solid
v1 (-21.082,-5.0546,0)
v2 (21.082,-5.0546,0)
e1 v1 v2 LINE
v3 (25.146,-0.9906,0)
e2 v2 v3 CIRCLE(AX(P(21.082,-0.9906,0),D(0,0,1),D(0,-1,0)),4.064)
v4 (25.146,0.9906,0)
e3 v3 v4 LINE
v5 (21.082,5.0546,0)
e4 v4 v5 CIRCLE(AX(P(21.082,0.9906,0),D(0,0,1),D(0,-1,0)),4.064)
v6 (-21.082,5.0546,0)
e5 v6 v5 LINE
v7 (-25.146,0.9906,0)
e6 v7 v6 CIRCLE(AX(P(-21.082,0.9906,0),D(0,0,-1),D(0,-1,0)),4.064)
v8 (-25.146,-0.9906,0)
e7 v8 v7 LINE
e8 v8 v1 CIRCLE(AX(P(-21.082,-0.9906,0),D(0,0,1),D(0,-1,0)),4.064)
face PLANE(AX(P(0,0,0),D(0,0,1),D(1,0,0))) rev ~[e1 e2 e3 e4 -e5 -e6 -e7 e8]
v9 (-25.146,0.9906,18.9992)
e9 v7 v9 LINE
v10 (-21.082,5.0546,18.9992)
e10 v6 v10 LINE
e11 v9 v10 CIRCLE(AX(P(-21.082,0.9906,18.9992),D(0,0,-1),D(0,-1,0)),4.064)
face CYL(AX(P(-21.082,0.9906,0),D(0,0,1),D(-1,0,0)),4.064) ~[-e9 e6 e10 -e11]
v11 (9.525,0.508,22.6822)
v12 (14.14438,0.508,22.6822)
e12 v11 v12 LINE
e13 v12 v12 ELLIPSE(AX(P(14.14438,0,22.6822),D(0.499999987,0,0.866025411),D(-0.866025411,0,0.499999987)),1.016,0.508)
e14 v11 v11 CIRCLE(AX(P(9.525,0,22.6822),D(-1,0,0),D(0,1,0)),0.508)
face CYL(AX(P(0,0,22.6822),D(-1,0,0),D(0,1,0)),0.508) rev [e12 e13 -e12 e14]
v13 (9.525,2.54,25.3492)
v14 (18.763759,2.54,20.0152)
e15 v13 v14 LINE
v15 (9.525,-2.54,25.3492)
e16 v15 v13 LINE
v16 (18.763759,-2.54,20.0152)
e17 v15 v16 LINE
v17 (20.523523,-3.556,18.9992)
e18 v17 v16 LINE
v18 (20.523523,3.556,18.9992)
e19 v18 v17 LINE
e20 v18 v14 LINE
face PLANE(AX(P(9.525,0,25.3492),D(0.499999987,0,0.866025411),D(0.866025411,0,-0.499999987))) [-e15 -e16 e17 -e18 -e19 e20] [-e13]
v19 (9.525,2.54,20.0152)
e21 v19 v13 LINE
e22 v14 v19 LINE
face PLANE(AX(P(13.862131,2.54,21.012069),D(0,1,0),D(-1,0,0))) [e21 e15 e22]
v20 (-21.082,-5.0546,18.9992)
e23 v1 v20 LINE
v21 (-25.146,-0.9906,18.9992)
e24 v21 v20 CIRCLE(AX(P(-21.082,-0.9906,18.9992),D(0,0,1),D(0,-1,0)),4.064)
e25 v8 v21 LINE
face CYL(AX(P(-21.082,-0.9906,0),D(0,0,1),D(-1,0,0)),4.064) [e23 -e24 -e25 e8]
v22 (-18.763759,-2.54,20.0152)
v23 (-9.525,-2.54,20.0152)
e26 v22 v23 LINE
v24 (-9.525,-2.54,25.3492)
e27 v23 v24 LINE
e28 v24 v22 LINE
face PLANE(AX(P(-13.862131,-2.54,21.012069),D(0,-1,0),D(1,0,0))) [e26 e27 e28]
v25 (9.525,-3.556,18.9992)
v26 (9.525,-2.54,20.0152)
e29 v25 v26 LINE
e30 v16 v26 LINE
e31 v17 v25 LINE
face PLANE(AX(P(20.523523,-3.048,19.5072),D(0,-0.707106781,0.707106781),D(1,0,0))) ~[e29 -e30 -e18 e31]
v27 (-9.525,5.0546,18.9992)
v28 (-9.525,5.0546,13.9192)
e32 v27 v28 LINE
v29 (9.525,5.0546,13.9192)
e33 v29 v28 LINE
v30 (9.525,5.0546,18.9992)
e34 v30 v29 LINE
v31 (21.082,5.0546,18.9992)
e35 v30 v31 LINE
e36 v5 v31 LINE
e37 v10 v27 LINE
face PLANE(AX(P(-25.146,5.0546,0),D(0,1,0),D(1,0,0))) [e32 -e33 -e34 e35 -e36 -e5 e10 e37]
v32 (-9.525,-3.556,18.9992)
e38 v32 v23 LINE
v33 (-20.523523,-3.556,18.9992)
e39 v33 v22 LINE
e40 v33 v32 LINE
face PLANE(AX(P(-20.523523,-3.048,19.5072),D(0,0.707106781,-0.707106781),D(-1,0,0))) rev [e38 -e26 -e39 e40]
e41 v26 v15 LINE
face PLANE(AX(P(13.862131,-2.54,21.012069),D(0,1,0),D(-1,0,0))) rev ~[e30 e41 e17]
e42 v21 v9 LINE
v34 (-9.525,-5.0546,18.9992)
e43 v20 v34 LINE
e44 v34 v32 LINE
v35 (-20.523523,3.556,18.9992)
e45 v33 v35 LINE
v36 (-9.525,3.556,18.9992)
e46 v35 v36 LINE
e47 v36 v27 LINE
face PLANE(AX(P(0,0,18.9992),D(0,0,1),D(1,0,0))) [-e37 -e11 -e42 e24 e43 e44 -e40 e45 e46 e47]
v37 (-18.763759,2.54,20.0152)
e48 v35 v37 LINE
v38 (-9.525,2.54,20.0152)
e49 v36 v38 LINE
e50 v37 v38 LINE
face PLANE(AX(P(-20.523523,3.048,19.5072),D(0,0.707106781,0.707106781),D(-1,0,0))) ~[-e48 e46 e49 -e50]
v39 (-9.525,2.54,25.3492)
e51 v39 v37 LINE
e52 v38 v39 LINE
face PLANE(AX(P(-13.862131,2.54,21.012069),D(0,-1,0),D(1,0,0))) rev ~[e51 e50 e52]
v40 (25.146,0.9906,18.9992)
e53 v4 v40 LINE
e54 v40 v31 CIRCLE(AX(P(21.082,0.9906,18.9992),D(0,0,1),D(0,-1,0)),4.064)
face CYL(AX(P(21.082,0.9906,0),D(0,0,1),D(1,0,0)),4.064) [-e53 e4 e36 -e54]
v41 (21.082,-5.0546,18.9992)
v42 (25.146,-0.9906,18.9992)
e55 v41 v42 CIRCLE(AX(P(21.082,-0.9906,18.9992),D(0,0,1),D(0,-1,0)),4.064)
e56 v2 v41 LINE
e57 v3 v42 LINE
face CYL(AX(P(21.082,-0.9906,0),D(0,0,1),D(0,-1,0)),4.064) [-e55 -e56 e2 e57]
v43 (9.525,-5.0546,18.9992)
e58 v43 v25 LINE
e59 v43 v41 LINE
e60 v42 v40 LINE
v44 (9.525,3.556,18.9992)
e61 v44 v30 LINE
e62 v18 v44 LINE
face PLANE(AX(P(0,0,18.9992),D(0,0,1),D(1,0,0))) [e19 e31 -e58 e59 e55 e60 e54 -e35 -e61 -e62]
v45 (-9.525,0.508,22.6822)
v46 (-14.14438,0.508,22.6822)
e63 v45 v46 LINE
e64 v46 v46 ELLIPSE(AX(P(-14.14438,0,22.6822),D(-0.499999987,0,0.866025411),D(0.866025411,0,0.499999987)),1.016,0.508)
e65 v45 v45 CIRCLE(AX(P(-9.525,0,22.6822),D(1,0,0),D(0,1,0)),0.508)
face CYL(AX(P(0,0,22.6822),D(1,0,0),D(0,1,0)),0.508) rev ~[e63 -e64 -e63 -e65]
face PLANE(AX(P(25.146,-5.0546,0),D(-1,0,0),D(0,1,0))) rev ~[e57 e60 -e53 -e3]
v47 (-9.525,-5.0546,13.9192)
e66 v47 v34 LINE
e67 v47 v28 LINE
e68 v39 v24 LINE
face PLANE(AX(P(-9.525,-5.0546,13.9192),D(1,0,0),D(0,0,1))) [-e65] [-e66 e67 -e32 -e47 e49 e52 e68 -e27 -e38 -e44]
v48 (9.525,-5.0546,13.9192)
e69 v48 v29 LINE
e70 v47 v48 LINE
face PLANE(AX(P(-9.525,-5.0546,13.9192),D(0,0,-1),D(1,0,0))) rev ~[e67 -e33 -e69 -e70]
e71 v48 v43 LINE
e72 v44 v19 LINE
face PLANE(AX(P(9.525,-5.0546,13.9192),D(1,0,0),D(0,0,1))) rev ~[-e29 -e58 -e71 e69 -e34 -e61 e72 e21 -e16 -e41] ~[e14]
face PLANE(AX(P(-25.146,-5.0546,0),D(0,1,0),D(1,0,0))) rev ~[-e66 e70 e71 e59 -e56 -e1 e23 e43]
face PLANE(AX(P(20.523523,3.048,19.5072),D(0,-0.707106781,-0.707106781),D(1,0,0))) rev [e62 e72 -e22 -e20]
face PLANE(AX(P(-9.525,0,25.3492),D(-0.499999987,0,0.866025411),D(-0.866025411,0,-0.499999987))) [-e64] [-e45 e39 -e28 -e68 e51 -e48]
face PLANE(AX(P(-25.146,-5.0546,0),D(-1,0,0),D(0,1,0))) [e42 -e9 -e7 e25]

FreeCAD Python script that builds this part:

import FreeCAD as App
import Part
import Sketcher
Q = App.Units.Quantity


def edges_at(feature, points):
    """Names of the edges that pass closest to the given points."""
    edges = feature.Shape.Edges
    near = lambda p: min(range(len(edges)), key=lambda i: edges[i].distToShape(Part.Vertex(*p))[0])
    return sorted({f"Edge{near(p) + 1}" for p in points})


def add_polygon(sketch, points):
    """Adds a closed chain of lines whose ends are joined by coincident constraints."""
    first, n = sketch.GeometryCount, len(points)
    for a, b in zip(points, points[1:] + points[:1]):
        sketch.addGeometry(Part.LineSegment(App.Vector(*a, 0), App.Vector(*b, 0)), False)
    for i in range(n):
        sketch.addConstraint(Sketcher.Constraint("Coincident", first + i, 2, first + (i + 1) % n, 1))

doc = App.newDocument("Part")
body = doc.addObject("PartDesign::Body", "Body")

# Sketch on XY plane
sketch1 = body.newObject("Sketcher::SketchObject", "Sketch")
sketch1.AttachmentSupport = (doc.getObject("XY_Plane"), [""])
sketch1.MapMode = "FlatFace"
add_polygon(sketch1, [(-25, 5), (-25, -5), (25, -5), (25, 5)])  # lines 0-3
sketch1.addConstraint([
    Sketcher.Constraint("Vertical", 0),
    Sketcher.Constraint("Horizontal", 1),
    Sketcher.Constraint("Vertical", 2),
    Sketcher.Constraint("Horizontal", 3),
    Sketcher.Constraint("Symmetric", 0, 2, 2, 2, -1, 1),
    Sketcher.Constraint("DistanceX", 1, 1, 1, 2, Q("1.98 in")),
    Sketcher.Constraint("DistanceY", 0, 2, 0, 1, Q("0.398 in")),
])
pad1 = body.newObject("PartDesign::Pad", "Pad")
pad1.Profile = sketch1
pad1.Length = Q("0.748 in")
doc.recompute()

fillet = body.newObject("PartDesign::Fillet", "Fillet")
fillet.Base = (pad1, edges_at(pad1, [
    (-25.146, -5.055, 9.5),
    (25.146, -5.055, 9.5),
    (25.146, 5.055, 9.5),
    (-25.146, 5.055, 9.5),
]))
fillet.Radius = Q("0.16 in")

# Sketch on XZ plane
sketch2 = body.newObject("Sketcher::SketchObject", "Sketch001")
sketch2.AttachmentSupport = (doc.getObject("XZ_Plane"), [""])
sketch2.MapMode = "FlatFace"
sketch2.AttachmentOffset = App.Placement(App.Vector(0, 0, 0.199 * 25.4), App.Rotation())
add_polygon(sketch2, [(-10, 19), (-10, 14), (10, 14), (10, 19)])  # lines 0-3
sketch2.addConstraint([
    Sketcher.Constraint("Vertical", 0),
    Sketcher.Constraint("Horizontal", 1),
    Sketcher.Constraint("Vertical", 2),
    Sketcher.Constraint("Horizontal", 3),
    Sketcher.Constraint("DistanceY", 0, 2, 0, 1, Q("0.2 in")),
    Sketcher.Constraint("DistanceX", 1, 1, 1, 2, Q("0.75 in")),
    Sketcher.Constraint("DistanceX", 0, 2, -1, 1, Q("0.375 in")),
    Sketcher.Constraint("DistanceY", -1, 1, 0, 2, Q("0.548 in")),
])
pocket1 = body.newObject("PartDesign::Pocket", "Pocket")
pocket1.Profile = sketch2
pocket1.Type = "ThroughAll"

# Sketch on XZ plane
sketch3 = body.newObject("Sketcher::SketchObject", "Sketch002")
sketch3.AttachmentSupport = (doc.getObject("XZ_Plane"), [""])
sketch3.MapMode = "FlatFace"
add_polygon(sketch3, [(10, 25), (10, 19), (21, 19)])  # lines 0-2
add_polygon(sketch3, [(-10, 19), (-10, 25), (-21, 19)])  # lines 3-5
sketch3.addConstraint([
    Sketcher.Constraint("Vertical", 0),
    Sketcher.Constraint("Horizontal", 1),
    Sketcher.Constraint("Vertical", 3),
    Sketcher.Constraint("Horizontal", 5),
    Sketcher.Constraint("Symmetric", 2, 2, 3, 2, -2),
    Sketcher.Constraint("Symmetric", 1, 2, 4, 2, -2),
    Sketcher.Constraint("Angle", 2, Q("150.000001 deg")),
    Sketcher.Constraint("Distance", 2, Q("0.5 in")),
    Sketcher.Constraint("DistanceX", 3, 2, 2, 2, Q("0.75 in")),
    Sketcher.Constraint("DistanceY", -1, 1, 0, 2, Q("0.748 in")),
])
pad2 = body.newObject("PartDesign::Pad", "Pad001")
pad2.Profile = sketch3
pad2.Length = Q("0.2 in")
pad2.Midplane = True
doc.recompute()

chamfer = body.newObject("PartDesign::Chamfer", "Chamfer")
chamfer.Base = (pad2, edges_at(pad2, [
    (-15.024, -2.54, 18.999),
    (15.024, -2.54, 18.999),
    (-15.024, 2.54, 18.999),
    (15.024, 2.54, 18.999),
]))
chamfer.Size = Q("0.04 in")

# Sketch on YZ plane
sketch4 = body.newObject("Sketcher::SketchObject", "Sketch003")
sketch4.AttachmentSupport = (doc.getObject("YZ_Plane"), [""])
sketch4.MapMode = "FlatFace"
sketch4.addGeometry(Part.Circle(App.Vector(0, 22.7, 0), App.Vector(0, 0, 1), 0.5), False)
sketch4.addConstraint([
    Sketcher.Constraint("PointOnObject", 0, 3, -2),
    Sketcher.Constraint("Diameter", 0, Q("0.04 in")),
    Sketcher.Constraint("DistanceY", -1, 1, 0, 3, Q("0.893 in")),
])
pocket2 = body.newObject("PartDesign::Pocket", "Pocket001")
pocket2.Profile = sketch4
pocket2.Type = "ThroughAll"
pocket2.Midplane = True

doc.recompute()
